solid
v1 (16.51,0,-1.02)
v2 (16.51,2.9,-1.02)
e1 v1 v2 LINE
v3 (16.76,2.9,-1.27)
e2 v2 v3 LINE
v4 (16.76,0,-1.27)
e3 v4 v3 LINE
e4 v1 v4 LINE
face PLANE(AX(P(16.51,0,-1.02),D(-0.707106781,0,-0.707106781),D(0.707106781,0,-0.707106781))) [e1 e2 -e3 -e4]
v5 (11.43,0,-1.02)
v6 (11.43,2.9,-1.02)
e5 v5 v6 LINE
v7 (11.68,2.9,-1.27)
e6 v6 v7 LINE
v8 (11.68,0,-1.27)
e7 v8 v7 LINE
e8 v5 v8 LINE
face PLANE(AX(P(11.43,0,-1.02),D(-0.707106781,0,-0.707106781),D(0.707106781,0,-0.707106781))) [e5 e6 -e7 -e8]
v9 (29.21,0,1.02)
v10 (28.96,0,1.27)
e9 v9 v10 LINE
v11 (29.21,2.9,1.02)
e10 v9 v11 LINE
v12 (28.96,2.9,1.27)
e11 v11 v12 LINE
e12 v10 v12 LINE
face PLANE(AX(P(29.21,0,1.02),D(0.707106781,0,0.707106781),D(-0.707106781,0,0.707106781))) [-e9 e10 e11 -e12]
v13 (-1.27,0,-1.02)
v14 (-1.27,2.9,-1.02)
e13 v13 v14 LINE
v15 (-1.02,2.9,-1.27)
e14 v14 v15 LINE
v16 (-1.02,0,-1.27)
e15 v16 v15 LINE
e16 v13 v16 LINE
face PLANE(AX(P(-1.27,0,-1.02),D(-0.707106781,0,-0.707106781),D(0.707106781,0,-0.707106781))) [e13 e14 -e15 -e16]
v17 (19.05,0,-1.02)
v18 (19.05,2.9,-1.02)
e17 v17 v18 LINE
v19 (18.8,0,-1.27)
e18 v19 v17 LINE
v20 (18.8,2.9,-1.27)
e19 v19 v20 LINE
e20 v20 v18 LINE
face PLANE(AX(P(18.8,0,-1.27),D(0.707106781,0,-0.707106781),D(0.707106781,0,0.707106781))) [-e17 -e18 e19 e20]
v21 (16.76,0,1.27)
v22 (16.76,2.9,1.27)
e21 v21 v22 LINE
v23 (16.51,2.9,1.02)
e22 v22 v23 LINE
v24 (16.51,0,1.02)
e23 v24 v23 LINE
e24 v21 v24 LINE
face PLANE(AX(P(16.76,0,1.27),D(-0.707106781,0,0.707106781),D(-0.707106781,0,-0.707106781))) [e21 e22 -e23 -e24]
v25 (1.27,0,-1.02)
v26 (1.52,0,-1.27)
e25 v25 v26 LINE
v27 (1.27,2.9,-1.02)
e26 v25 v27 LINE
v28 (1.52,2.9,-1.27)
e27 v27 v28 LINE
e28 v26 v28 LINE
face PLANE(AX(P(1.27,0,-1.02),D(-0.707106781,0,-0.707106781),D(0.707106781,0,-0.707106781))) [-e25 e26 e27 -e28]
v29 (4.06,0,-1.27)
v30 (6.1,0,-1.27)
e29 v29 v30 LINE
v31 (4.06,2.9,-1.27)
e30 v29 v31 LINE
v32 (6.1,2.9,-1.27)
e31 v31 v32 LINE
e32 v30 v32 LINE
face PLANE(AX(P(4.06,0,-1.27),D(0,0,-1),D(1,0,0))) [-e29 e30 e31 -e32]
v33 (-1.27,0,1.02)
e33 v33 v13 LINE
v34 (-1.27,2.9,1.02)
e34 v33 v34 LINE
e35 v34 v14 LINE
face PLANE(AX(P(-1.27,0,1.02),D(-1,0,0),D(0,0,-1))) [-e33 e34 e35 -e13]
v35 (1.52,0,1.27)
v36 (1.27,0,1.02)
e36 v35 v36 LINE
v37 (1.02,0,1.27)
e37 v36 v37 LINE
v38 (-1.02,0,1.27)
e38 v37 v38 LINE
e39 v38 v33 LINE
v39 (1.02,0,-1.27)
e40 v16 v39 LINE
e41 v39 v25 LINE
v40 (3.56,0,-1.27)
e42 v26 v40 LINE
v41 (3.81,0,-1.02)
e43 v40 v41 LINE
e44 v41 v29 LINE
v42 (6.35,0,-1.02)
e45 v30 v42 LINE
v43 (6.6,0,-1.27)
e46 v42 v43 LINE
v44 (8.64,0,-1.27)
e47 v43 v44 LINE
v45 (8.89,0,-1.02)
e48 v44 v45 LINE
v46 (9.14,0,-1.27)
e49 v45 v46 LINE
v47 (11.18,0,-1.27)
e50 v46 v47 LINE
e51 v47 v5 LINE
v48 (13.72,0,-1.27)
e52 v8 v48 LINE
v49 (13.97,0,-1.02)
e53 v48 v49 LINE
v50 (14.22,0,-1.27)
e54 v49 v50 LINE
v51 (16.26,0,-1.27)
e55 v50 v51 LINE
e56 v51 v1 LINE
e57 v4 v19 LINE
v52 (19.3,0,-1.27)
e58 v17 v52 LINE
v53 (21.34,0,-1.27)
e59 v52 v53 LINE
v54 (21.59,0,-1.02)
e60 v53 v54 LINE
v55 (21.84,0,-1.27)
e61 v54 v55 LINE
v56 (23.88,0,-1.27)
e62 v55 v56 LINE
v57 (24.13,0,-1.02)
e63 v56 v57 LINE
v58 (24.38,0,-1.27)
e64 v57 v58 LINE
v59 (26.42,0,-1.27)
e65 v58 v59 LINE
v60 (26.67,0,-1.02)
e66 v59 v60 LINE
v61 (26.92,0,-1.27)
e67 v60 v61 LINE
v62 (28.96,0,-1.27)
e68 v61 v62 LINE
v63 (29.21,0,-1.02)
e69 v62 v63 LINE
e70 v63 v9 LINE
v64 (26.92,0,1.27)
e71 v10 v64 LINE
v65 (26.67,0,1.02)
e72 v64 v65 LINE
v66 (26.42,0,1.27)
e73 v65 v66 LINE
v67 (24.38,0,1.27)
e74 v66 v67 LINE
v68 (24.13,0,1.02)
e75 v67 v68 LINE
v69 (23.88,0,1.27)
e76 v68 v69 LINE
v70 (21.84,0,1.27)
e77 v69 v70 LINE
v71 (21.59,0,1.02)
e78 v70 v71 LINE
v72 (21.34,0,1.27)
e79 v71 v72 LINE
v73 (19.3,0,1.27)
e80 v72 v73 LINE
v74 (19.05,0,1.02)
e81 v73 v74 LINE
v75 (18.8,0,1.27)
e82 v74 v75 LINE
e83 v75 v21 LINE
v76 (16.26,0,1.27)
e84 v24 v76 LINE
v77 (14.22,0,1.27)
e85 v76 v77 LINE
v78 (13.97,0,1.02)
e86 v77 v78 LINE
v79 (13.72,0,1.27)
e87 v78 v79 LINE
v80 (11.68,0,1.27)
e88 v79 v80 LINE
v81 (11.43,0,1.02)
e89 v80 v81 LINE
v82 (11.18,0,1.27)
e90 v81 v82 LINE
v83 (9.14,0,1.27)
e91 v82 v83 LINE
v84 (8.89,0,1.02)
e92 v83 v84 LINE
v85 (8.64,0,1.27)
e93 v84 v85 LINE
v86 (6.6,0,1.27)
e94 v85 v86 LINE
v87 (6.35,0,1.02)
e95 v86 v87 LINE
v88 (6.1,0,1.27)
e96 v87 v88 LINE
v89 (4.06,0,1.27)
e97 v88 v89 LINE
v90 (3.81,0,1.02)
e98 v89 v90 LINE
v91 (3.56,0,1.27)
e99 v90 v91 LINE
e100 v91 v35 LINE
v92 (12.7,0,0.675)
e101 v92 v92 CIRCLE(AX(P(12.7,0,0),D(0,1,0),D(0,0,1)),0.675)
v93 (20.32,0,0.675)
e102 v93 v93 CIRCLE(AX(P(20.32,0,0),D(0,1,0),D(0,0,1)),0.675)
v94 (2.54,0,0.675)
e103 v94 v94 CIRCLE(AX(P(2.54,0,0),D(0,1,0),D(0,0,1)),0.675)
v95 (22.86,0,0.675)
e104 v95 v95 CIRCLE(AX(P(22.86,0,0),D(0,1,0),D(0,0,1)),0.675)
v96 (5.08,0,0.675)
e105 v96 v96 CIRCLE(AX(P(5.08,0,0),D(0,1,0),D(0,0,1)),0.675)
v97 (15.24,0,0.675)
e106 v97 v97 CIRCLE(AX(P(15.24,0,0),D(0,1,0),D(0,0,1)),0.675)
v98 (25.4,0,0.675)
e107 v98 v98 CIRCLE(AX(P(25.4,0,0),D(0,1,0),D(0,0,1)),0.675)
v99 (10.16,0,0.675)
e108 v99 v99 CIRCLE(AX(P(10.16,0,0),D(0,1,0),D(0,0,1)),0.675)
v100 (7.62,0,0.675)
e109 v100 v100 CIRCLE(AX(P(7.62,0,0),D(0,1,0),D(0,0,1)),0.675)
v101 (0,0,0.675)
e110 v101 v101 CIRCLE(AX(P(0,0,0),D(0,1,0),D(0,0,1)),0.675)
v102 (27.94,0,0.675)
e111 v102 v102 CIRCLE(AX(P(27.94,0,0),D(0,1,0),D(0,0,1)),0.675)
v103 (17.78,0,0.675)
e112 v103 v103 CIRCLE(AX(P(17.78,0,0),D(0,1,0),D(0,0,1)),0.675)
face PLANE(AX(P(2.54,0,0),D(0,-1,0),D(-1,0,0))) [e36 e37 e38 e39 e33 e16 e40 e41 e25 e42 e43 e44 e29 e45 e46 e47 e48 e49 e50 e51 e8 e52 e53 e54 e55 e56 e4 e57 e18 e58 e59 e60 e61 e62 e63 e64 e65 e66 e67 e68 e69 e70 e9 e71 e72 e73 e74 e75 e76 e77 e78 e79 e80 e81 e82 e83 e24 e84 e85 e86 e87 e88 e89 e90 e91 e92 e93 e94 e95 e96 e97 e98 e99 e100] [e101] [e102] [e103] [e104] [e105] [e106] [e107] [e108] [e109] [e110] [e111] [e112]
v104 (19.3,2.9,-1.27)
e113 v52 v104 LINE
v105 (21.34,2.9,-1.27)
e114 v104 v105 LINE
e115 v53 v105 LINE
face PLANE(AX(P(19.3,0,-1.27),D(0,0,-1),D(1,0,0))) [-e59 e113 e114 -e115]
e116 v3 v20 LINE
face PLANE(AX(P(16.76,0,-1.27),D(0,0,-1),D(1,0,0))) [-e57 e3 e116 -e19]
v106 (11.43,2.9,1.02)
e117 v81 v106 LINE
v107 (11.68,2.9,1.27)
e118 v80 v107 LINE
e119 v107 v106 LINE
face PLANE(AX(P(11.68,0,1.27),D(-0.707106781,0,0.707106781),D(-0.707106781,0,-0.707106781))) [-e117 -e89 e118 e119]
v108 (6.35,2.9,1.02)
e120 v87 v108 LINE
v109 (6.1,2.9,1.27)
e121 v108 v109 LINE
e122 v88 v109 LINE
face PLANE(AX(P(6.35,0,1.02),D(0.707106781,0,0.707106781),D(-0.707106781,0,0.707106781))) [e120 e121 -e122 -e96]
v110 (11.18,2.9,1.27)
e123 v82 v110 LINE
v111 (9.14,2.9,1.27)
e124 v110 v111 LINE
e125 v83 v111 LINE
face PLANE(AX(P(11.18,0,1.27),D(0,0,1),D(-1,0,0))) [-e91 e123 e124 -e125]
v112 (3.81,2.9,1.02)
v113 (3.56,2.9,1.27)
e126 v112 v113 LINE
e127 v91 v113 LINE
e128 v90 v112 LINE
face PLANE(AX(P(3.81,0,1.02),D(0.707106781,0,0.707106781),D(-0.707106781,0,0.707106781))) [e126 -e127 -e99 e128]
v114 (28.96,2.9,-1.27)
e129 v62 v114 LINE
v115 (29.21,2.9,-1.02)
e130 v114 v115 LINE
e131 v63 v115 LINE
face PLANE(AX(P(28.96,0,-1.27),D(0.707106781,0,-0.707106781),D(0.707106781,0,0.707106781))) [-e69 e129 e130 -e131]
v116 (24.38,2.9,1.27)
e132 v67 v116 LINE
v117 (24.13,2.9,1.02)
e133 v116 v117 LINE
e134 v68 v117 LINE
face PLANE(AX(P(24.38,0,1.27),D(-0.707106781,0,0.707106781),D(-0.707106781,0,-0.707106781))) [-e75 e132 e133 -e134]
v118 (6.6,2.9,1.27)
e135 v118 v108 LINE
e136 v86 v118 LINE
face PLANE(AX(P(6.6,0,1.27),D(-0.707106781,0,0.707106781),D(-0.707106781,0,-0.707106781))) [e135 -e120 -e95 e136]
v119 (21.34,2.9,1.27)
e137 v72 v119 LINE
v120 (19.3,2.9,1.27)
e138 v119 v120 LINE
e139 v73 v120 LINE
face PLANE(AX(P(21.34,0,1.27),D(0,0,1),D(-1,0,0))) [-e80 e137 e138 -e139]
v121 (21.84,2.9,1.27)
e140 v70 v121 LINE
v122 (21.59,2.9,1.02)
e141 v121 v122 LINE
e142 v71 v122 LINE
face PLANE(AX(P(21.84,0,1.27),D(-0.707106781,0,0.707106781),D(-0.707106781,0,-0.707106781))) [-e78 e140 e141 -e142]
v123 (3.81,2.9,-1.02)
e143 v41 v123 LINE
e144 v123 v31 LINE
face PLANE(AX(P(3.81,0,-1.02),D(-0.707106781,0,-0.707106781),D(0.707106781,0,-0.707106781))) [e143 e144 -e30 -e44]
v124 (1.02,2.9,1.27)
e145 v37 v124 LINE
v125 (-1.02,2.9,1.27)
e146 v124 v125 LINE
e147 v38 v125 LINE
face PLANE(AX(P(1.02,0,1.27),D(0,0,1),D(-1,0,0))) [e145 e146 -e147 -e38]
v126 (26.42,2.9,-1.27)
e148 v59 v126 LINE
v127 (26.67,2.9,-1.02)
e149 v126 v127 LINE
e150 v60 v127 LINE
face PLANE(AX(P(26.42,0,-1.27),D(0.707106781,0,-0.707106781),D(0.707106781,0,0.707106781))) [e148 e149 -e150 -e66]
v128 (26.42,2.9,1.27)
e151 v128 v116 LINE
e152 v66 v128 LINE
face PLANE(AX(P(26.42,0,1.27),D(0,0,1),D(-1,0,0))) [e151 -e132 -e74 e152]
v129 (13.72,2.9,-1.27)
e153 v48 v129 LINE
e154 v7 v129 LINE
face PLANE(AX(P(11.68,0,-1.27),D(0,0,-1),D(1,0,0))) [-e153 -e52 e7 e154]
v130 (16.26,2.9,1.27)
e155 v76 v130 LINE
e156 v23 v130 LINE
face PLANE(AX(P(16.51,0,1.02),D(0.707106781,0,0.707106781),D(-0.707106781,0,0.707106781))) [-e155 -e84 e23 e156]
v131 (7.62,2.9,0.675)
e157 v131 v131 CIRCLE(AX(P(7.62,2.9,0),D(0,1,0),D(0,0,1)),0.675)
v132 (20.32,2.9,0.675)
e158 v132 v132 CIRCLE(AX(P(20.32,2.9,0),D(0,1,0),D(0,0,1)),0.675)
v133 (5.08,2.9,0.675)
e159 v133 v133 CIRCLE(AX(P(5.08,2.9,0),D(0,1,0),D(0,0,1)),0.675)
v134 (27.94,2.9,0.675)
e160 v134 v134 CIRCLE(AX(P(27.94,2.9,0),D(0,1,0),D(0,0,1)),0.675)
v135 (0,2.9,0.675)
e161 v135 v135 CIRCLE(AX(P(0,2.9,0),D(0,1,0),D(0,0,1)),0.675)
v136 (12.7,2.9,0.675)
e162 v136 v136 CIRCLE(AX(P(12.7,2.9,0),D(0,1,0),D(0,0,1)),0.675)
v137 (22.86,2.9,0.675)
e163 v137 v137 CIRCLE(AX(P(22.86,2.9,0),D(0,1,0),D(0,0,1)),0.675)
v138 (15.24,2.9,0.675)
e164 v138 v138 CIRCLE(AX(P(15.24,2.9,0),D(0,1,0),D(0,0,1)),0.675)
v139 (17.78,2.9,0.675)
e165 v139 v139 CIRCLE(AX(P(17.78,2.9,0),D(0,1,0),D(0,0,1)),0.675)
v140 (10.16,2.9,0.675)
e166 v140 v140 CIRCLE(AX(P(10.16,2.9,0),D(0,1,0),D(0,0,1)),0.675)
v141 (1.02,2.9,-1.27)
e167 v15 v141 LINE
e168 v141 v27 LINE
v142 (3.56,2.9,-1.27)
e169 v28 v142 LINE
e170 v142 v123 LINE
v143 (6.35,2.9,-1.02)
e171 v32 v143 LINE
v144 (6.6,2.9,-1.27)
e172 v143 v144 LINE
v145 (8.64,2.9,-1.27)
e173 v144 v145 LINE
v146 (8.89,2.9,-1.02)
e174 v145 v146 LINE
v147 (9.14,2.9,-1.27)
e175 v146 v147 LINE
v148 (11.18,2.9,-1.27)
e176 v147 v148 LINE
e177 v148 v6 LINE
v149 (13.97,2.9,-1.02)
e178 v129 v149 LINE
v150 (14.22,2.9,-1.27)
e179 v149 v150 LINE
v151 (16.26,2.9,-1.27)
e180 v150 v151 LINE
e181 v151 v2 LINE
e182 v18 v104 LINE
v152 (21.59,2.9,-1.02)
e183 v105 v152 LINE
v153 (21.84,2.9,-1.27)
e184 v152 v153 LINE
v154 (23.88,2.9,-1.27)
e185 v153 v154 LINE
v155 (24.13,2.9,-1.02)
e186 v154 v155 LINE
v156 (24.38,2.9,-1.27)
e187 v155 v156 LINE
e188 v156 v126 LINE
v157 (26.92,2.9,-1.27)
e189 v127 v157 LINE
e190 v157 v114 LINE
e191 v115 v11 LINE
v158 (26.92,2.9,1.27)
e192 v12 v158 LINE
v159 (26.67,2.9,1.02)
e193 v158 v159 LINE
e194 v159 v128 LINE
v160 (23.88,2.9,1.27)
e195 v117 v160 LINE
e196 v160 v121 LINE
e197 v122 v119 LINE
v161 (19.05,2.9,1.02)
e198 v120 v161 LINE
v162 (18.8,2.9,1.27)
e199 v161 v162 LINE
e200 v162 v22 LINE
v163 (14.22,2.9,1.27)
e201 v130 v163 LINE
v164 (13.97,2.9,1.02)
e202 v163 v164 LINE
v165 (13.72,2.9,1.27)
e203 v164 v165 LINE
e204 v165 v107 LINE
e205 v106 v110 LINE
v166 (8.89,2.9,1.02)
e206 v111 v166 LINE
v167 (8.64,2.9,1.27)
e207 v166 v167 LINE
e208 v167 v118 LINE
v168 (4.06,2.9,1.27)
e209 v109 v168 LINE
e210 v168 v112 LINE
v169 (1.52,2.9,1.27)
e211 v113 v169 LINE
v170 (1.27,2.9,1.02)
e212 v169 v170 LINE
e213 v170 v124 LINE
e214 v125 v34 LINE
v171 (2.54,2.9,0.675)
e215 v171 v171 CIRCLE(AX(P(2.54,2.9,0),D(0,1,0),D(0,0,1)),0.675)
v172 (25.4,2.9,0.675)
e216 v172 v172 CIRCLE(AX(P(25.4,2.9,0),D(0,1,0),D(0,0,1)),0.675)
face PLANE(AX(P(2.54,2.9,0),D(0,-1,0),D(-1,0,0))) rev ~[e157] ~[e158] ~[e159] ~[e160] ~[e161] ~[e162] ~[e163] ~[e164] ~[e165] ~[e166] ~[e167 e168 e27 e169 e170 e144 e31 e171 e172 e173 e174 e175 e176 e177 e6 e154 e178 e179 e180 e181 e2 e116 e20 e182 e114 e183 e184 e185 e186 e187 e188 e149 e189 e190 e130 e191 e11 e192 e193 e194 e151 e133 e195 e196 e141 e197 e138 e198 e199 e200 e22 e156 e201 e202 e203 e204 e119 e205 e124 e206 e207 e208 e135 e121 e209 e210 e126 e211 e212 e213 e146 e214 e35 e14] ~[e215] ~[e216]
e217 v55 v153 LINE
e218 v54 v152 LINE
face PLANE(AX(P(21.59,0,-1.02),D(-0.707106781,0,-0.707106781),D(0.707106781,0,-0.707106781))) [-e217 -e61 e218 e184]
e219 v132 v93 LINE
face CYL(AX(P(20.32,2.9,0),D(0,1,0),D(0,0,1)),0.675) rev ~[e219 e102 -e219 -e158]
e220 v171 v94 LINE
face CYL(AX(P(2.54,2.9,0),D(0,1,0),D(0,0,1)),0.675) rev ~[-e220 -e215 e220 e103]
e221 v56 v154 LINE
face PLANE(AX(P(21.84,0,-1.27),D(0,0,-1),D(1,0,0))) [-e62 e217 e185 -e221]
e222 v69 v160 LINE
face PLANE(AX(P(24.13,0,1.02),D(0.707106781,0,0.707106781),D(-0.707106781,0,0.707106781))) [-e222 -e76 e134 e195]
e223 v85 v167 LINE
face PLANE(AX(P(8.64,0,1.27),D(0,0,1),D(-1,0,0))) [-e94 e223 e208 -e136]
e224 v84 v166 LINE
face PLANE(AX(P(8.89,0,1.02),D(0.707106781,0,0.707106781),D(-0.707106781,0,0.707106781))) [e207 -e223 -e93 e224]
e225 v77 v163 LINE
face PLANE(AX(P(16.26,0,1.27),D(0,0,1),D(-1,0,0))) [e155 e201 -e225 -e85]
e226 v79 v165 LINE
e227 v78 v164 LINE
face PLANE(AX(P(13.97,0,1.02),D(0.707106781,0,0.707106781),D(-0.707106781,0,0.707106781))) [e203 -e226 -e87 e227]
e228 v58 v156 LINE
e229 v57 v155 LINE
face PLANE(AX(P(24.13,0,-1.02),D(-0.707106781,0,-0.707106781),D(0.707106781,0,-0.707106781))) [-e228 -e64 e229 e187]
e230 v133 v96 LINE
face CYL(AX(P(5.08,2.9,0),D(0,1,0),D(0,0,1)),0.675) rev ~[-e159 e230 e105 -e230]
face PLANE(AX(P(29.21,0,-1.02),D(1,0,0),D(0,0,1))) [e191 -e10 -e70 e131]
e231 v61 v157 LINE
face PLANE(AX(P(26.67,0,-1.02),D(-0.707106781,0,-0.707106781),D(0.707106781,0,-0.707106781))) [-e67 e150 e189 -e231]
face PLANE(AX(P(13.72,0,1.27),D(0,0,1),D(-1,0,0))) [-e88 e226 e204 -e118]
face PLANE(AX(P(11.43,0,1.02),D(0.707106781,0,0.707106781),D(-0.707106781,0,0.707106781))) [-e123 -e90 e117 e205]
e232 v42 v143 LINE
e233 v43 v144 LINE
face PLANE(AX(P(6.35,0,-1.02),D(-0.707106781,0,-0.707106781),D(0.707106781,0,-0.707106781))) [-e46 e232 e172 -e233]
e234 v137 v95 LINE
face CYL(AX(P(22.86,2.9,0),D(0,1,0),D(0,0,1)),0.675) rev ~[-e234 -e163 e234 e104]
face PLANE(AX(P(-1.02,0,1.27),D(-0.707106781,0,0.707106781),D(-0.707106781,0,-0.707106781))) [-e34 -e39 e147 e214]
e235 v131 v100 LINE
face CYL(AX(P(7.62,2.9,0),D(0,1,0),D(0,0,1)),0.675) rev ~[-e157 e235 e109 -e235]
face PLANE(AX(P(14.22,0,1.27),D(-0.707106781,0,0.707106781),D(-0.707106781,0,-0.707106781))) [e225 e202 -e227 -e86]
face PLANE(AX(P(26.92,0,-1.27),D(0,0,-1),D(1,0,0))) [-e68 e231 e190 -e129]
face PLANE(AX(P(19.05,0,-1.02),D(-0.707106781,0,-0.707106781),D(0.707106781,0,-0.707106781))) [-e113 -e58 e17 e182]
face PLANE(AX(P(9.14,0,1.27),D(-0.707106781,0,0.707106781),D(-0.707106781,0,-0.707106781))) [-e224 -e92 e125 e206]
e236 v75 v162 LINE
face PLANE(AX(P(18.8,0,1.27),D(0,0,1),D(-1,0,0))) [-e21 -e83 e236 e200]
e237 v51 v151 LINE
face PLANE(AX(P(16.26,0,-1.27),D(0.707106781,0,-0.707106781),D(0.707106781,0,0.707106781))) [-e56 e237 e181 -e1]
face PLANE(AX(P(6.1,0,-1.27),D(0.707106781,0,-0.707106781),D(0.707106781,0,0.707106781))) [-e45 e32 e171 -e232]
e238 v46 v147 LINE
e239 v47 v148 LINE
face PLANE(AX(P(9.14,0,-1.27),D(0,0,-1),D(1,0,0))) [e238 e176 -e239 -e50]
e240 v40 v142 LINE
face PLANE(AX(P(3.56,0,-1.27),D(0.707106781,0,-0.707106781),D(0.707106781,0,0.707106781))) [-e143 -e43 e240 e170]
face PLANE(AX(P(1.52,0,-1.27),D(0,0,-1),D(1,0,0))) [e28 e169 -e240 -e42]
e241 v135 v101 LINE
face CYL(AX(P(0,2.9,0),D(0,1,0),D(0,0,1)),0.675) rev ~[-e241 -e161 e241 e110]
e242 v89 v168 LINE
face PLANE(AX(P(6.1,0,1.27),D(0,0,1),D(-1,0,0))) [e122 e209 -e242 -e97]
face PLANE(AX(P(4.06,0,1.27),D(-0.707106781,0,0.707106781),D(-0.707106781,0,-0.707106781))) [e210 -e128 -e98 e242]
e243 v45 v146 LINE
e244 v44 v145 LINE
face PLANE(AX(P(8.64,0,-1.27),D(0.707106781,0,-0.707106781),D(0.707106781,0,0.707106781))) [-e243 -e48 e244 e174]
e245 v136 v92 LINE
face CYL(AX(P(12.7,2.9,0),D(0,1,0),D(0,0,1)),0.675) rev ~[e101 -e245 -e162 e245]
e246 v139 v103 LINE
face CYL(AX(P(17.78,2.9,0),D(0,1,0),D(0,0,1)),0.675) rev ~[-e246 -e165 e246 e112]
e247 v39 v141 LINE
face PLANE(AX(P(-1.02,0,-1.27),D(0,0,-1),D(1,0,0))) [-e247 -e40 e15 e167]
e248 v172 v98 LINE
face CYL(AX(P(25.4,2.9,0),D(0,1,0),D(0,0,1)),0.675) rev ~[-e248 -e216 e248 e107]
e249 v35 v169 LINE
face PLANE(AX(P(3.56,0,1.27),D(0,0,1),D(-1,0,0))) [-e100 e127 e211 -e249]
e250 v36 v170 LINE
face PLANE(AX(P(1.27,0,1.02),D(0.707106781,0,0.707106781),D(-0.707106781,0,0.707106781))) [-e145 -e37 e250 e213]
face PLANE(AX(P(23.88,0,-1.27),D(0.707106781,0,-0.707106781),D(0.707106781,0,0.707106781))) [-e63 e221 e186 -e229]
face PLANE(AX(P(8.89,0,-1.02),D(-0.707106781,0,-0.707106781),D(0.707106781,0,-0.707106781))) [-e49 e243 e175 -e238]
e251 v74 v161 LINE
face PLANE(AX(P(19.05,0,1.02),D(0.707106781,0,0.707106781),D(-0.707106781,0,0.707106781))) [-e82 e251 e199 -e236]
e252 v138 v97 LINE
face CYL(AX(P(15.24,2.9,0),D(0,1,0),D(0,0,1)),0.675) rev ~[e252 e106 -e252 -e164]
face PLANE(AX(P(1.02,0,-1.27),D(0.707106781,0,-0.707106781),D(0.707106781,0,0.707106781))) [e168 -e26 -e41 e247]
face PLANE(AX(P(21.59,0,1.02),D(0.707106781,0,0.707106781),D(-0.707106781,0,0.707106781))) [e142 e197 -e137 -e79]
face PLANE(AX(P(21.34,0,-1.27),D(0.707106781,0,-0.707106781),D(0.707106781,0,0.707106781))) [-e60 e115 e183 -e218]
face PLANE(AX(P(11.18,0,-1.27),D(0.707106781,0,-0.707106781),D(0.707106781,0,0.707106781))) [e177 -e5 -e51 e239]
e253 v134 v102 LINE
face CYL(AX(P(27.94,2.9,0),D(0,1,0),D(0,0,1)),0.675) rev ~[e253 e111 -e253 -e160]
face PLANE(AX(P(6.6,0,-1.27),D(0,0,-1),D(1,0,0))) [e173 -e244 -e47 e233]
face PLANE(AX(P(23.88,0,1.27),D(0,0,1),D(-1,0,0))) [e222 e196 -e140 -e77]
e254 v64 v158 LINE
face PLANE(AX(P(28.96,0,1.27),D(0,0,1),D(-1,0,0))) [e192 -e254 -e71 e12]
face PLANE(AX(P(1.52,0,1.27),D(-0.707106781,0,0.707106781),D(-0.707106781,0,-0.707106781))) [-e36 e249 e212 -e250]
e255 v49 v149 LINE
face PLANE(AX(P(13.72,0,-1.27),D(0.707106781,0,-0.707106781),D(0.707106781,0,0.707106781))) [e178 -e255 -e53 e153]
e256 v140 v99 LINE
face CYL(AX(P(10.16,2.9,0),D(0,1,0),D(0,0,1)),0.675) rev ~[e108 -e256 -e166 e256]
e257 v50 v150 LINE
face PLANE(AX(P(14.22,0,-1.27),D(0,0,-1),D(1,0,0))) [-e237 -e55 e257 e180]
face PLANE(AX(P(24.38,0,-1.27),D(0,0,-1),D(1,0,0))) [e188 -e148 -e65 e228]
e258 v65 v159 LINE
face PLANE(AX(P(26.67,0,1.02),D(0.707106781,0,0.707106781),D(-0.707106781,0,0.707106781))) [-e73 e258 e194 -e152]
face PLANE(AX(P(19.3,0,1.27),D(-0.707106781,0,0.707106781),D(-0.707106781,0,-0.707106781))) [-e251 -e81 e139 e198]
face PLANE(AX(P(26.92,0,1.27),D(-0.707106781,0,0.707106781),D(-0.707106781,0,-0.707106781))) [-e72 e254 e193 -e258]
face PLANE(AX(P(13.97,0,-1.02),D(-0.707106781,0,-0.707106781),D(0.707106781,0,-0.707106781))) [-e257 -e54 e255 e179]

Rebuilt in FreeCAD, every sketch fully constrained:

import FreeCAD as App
import Part
import Sketcher

V = App.Vector
Q = App.Units.Quantity


def add_polygon(sketch, points):
    """Adds a closed chain of lines whose ends are joined by coincident constraints."""
    first, n = sketch.GeometryCount, len(points)
    for a, b in zip(points, points[1:] + points[:1]):
        sketch.addGeometry(Part.LineSegment(App.Vector(*a, 0), App.Vector(*b, 0)), False)
    for i in range(n):
        sketch.addConstraint(Sketcher.Constraint("Coincident", first + i, 2, first + (i + 1) % n, 1))

doc = App.newDocument("Part")
body = doc.addObject("PartDesign::Body", "Body")

sketch1 = body.newObject("Sketcher::SketchObject", "Sketch")
sketch1.AttachmentSupport = (doc.getObject("XZ_Plane"), [""])
sketch1.MapMode = "FlatFace"
add_polygon(sketch1, [(1.02, -1.27), (-1.02, -1.27), (-1.27, -1.02), (-1.27, 1.02), (-1.02, 1.27), (1.02, 1.27), (1.27, 1.02), (1.27, -1.02)])
sketch1.addConstraint([
    Sketcher.Constraint("Horizontal", 0),
    Sketcher.Constraint("Vertical", 2),
    Sketcher.Constraint("Horizontal", 4),
    Sketcher.Constraint("Vertical", 6),
    Sketcher.Constraint("Symmetric", 0, 2, 4, 2, -1, 1),
    Sketcher.Constraint("Symmetric", 1, 2, 5, 2, -1, 1),
    Sketcher.Constraint("Perpendicular", 1, 3),
    Sketcher.Constraint("Perpendicular", 5, 7),
    Sketcher.Constraint("Horizontal", 2, 2, 5, 2),
    Sketcher.Constraint("Horizontal", 1, 2, 6, 2),
    Sketcher.Constraint("Vertical", 0, 2, 3, 2),
    Sketcher.Constraint("Equal", 4, 2),
    Sketcher.Constraint("DistanceX", 0, 2, 0, 1, Q("2.04 mm")),
    Sketcher.Constraint("DistanceY", 0, 2, -1, 1, Q("1.27 mm")),
])
pad1 = body.newObject("PartDesign::Pad", "Pad")
pad1.Profile = sketch1
pad1.Length = 2.9
pad1.Reversed = True

sketch2 = body.newObject("Sketcher::SketchObject", "Sketch001")
sketch2.AttachmentSupport = (doc.getObject("XZ_Plane"), [""])
sketch2.MapMode = "FlatFace"
sketch2.AttachmentOffset = App.Placement(V(0, 0, -2.9), App.Rotation())
sketch2.addGeometry(Part.Circle(V(0, 0, 0), V(0, 0, 1), 0.675), False)
sketch2.addConstraint([
    Sketcher.Constraint("Coincident", 0, 3, -1, 1),
    Sketcher.Constraint("Diameter", 0, Q("1.35 mm")),
])
pocket1 = body.newObject("PartDesign::Pocket", "Pocket")
pocket1.Profile = sketch2
pocket1.Length = 3
pocket1.Reversed = True
doc.recompute()

linearpattern = body.newObject("PartDesign::LinearPattern", "LinearPattern")
linearpattern.Originals = [pad1, pocket1]
linearpattern.Direction = (doc.getObject("X_Axis"), [""])
linearpattern.Mode = "offset"
linearpattern.Offset = 2.54
linearpattern.Occurrences = 12
body.Tip = linearpattern

doc.recompute()
